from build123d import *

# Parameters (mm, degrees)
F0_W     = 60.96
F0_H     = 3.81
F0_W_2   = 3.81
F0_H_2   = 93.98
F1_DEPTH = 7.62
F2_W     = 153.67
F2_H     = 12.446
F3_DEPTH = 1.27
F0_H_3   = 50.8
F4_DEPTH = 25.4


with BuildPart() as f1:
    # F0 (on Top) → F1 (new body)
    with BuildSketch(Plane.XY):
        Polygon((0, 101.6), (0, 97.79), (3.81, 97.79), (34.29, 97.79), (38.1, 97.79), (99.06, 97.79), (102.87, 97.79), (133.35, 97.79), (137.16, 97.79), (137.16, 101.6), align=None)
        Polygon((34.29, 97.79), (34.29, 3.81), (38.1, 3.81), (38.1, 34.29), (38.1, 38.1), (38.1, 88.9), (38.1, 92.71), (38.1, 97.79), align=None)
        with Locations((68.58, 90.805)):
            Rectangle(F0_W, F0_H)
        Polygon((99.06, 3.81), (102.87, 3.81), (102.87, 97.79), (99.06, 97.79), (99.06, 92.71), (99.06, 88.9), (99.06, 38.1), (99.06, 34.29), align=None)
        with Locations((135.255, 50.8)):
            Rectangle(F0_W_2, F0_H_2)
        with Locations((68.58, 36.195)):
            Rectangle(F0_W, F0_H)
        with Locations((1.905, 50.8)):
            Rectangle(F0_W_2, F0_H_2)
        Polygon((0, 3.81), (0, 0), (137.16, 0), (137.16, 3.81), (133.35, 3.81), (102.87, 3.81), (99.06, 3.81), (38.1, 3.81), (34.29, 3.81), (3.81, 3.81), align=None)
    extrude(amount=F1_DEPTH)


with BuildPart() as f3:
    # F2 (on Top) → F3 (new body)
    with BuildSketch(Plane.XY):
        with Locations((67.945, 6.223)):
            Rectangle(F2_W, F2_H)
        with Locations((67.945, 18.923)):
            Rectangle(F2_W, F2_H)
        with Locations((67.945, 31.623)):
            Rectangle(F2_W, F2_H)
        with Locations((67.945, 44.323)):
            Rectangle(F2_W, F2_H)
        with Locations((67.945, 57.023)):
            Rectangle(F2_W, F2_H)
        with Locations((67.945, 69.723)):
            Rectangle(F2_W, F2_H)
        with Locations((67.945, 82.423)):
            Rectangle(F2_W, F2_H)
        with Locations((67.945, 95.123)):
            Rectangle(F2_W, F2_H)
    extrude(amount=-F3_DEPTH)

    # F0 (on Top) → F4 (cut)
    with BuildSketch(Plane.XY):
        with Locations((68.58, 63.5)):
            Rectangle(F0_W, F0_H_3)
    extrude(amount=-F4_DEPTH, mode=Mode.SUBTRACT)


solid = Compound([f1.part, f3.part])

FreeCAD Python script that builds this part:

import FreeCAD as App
import Part
import Sketcher
from FreeCAD import Vector
Q = App.Units.Quantity

doc = App.newDocument("Part")
params = doc.addObject("Spreadsheet::Sheet", "Params")
for row, (alias, value) in enumerate([
    ("sketch1_height", "4 in"),
    ("sketch1_height2", "2 in"),
    ("sketch1_width", "5.4 in"),
    ("sketch1_width2", "1.2 in"),
    ("sketch1_width3", "2.4 in"),
    ("pad1_length", "0.3 in"),
    ("sketch2_width", "6.05 in"),
    ("sketch2_height", "0.49 in"),
    ("pad2_length", "0.05 in"),
    ("sketch3_height", "2 in"),
    ("sketch3_width", "2.4 in"),
    ("pocket1_length", "1 in"),
], start=1):
    params.set(f"A{row}", alias)
    params.set(f"B{row}", "=" + value)
    params.setAlias(f"B{row}", alias)

body = doc.addObject("PartDesign::Body", "Body")

sketch1 = body.newObject("Sketcher::SketchObject", "Sketch")
sketch1.AttachmentSupport = (doc.getObject("XY_Plane"), [""])
sketch1.MapMode = "FlatFace"
sketch1.addGeometry(Part.LineSegment(Vector(0, 102, 0), Vector(0, 0, 0)), False)
sketch1.addGeometry(Part.LineSegment(Vector(0, 0, 0), Vector(137, 0, 0)), False)
sketch1.addGeometry(Part.LineSegment(Vector(137, 0, 0), Vector(137, 102, 0)), False)
sketch1.addGeometry(Part.LineSegment(Vector(137, 102, 0), Vector(0, 102, 0)), False)
sketch1.addGeometry(Part.LineSegment(Vector(4, 4, 0), Vector(4, 98, 0)), False)
sketch1.addGeometry(Part.LineSegment(Vector(4, 98, 0), Vector(34, 98, 0)), False)
sketch1.addGeometry(Part.LineSegment(Vector(34, 98, 0), Vector(34, 4, 0)), False)
sketch1.addGeometry(Part.LineSegment(Vector(34, 4, 0), Vector(4, 4, 0)), False)
sketch1.addGeometry(Part.LineSegment(Vector(38, 4, 0), Vector(38, 34, 0)), False)
sketch1.addGeometry(Part.LineSegment(Vector(38, 34, 0), Vector(99, 34, 0)), False)
sketch1.addGeometry(Part.LineSegment(Vector(99, 34, 0), Vector(99, 4, 0)), False)
sketch1.addGeometry(Part.LineSegment(Vector(99, 4, 0), Vector(38, 4, 0)), False)
sketch1.addGeometry(Part.LineSegment(Vector(103, 4, 0), Vector(103, 98, 0)), False)
sketch1.addGeometry(Part.LineSegment(Vector(103, 98, 0), Vector(133, 98, 0)), False)
sketch1.addGeometry(Part.LineSegment(Vector(133, 98, 0), Vector(133, 4, 0)), False)
sketch1.addGeometry(Part.LineSegment(Vector(133, 4, 0), Vector(103, 4, 0)), False)
sketch1.addGeometry(Part.LineSegment(Vector(38, 38, 0), Vector(38, 89, 0)), False)
sketch1.addGeometry(Part.LineSegment(Vector(38, 89, 0), Vector(99, 89, 0)), False)
sketch1.addGeometry(Part.LineSegment(Vector(99, 89, 0), Vector(99, 38, 0)), False)
sketch1.addGeometry(Part.LineSegment(Vector(99, 38, 0), Vector(38, 38, 0)), False)
sketch1.addGeometry(Part.LineSegment(Vector(99, 93, 0), Vector(38, 93, 0)), False)
sketch1.addGeometry(Part.LineSegment(Vector(38, 93, 0), Vector(38, 98, 0)), False)
sketch1.addGeometry(Part.LineSegment(Vector(38, 98, 0), Vector(99, 98, 0)), False)
sketch1.addGeometry(Part.LineSegment(Vector(99, 98, 0), Vector(99, 93, 0)), False)
sketch1.addConstraint(Sketcher.Constraint("Coincident", 0, 2, 1, 1))
sketch1.addConstraint(Sketcher.Constraint("Coincident", 1, 2, 2, 1))
sketch1.addConstraint(Sketcher.Constraint("Coincident", 2, 2, 3, 1))
sketch1.addConstraint(Sketcher.Constraint("Coincident", 3, 2, 0, 1))
sketch1.addConstraint(Sketcher.Constraint("Coincident", 4, 2, 5, 1))
sketch1.addConstraint(Sketcher.Constraint("Coincident", 5, 2, 6, 1))
sketch1.addConstraint(Sketcher.Constraint("Coincident", 6, 2, 7, 1))
sketch1.addConstraint(Sketcher.Constraint("Coincident", 7, 2, 4, 1))
sketch1.addConstraint(Sketcher.Constraint("Coincident", 8, 2, 9, 1))
sketch1.addConstraint(Sketcher.Constraint("Coincident", 9, 2, 10, 1))
sketch1.addConstraint(Sketcher.Constraint("Coincident", 10, 2, 11, 1))
sketch1.addConstraint(Sketcher.Constraint("Coincident", 11, 2, 8, 1))
sketch1.addConstraint(Sketcher.Constraint("Coincident", 12, 2, 13, 1))
sketch1.addConstraint(Sketcher.Constraint("Coincident", 13, 2, 14, 1))
sketch1.addConstraint(Sketcher.Constraint("Coincident", 14, 2, 15, 1))
sketch1.addConstraint(Sketcher.Constraint("Coincident", 15, 2, 12, 1))
sketch1.addConstraint(Sketcher.Constraint("Coincident", 16, 2, 17, 1))
sketch1.addConstraint(Sketcher.Constraint("Coincident", 17, 2, 18, 1))
sketch1.addConstraint(Sketcher.Constraint("Coincident", 18, 2, 19, 1))
sketch1.addConstraint(Sketcher.Constraint("Coincident", 19, 2, 16, 1))
sketch1.addConstraint(Sketcher.Constraint("Coincident", 20, 2, 21, 1))
sketch1.addConstraint(Sketcher.Constraint("Coincident", 21, 2, 22, 1))
sketch1.addConstraint(Sketcher.Constraint("Coincident", 22, 2, 23, 1))
sketch1.addConstraint(Sketcher.Constraint("Coincident", 23, 2, 20, 1))
sketch1.addConstraint(Sketcher.Constraint("Vertical", 0))
sketch1.addConstraint(Sketcher.Constraint("Horizontal", 1))
sketch1.addConstraint(Sketcher.Constraint("Vertical", 2))
sketch1.addConstraint(Sketcher.Constraint("Horizontal", 3))
sketch1.addConstraint(Sketcher.Constraint("Vertical", 4))
sketch1.addConstraint(Sketcher.Constraint("Horizontal", 5))
sketch1.addConstraint(Sketcher.Constraint("Vertical", 6))
sketch1.addConstraint(Sketcher.Constraint("Horizontal", 7))
sketch1.addConstraint(Sketcher.Constraint("Vertical", 8))
sketch1.addConstraint(Sketcher.Constraint("Horizontal", 9))
sketch1.addConstraint(Sketcher.Constraint("Vertical", 10))
sketch1.addConstraint(Sketcher.Constraint("Horizontal", 11))
sketch1.addConstraint(Sketcher.Constraint("Vertical", 12))
sketch1.addConstraint(Sketcher.Constraint("Horizontal", 13))
sketch1.addConstraint(Sketcher.Constraint("Vertical", 14))
sketch1.addConstraint(Sketcher.Constraint("Horizontal", 15))
sketch1.addConstraint(Sketcher.Constraint("Vertical", 16))
sketch1.addConstraint(Sketcher.Constraint("Horizontal", 17))
sketch1.addConstraint(Sketcher.Constraint("Vertical", 18))
sketch1.addConstraint(Sketcher.Constraint("Horizontal", 19))
sketch1.addConstraint(Sketcher.Constraint("Horizontal", 20))
sketch1.addConstraint(Sketcher.Constraint("Vertical", 21))
sketch1.addConstraint(Sketcher.Constraint("Horizontal", 22))
sketch1.addConstraint(Sketcher.Constraint("Vertical", 23))
sketch1.addConstraint(Sketcher.Constraint("Coincident", 0, 2, -1, 1))
sketch1.addConstraint(Sketcher.Constraint("Horizontal", 7, 2, 10, 2))
sketch1.addConstraint(Sketcher.Constraint("Horizontal", 5, 2, 12, 2))
sketch1.addConstraint(Sketcher.Constraint("Horizontal", 11, 2, 14, 2))
sketch1.addConstraint(Sketcher.Constraint("Horizontal", 13, 2, 21, 2))
sketch1.addConstraint(Sketcher.Constraint("Vertical", 11, 2, 16, 2))
sketch1.addConstraint(Sketcher.Constraint("Vertical", 10, 2, 17, 2))
sketch1.addConstraint(Sketcher.Constraint("Vertical", 19, 2, 20, 2))
sketch1.addConstraint(Sketcher.Constraint("Vertical", 18, 2, 22, 2))
sketch1.addConstraint(Sketcher.Constraint("Equal", 7, 13))
sketch1.addConstraint(Sketcher.Constraint("Equal", 15, 8))
sketch1.addConstraint(Sketcher.Constraint("DistanceY", 0, 2, 0, 1, Q("4 in")))
sketch1.addConstraint(Sketcher.Constraint("DistanceY", 16, 1, 16, 2, Q("2 in")))
sketch1.addConstraint(Sketcher.Constraint("DistanceX", 1, 1, 1, 2, Q("5.4 in")))
sketch1.addConstraint(Sketcher.Constraint("DistanceX", 5, 1, 5, 2, Q("1.2 in")))
sketch1.addConstraint(Sketcher.Constraint("DistanceX", 9, 1, 9, 2, Q("2.4 in")))
sketch1.addConstraint(Sketcher.Constraint("DistanceY", 4, 1, 4, 2, Q("3.7 in")))
sketch1.addConstraint(Sketcher.Constraint("DistanceY", 21, 1, 21, 2, Q("0.2 in")))
sketch1.addConstraint(Sketcher.Constraint("DistanceX", -1, 1, 8, 2, Q("1.5 in")))
sketch1.addConstraint(Sketcher.Constraint("DistanceY", -1, 1, 16, 2, Q("3.5 in")))
sketch1.addConstraint(Sketcher.Constraint("DistanceX", 5, 2, 12, 2, Q("2.7 in")))
sketch1.addConstraint(Sketcher.Constraint("DistanceX", -1, 1, 4, 2, Q("0.15 in")))
sketch1.addConstraint(Sketcher.Constraint("DistanceY", -1, 1, 4, 2, Q("3.85 in")))
sketch1.setExpression("Constraints[59]", "Params.sketch1_height")
sketch1.setExpression("Constraints[60]", "Params.sketch1_height2")
sketch1.setExpression("Constraints[61]", "Params.sketch1_width")
sketch1.setExpression("Constraints[62]", "Params.sketch1_width2")
sketch1.setExpression("Constraints[63]", "Params.sketch1_width3")
pad1 = body.newObject("PartDesign::Pad", "Pad")
pad1.Profile = sketch1
pad1.setExpression("Length", "Params.pad1_length")
body2 = doc.addObject("PartDesign::Body", "Body001")
body2.AllowCompound = True

sketch2 = body2.newObject("Sketcher::SketchObject", "Sketch001")
sketch2.AttachmentSupport = (doc.getObject("XY_Plane001"), [""])
sketch2.MapMode = "FlatFace"
sketch2.addGeometry(Part.LineSegment(Vector(-9, 12, 0), Vector(-9, 0, 0)), False)
sketch2.addGeometry(Part.LineSegment(Vector(-9, 0, 0), Vector(145, 0, 0)), False)
sketch2.addGeometry(Part.LineSegment(Vector(145, 0, 0), Vector(145, 12, 0)), False)
sketch2.addGeometry(Part.LineSegment(Vector(145, 12, 0), Vector(-9, 12, 0)), False)
sketch2.addGeometry(Part.LineSegment(Vector(-9, 25, 0), Vector(-9, 13, 0)), False)
sketch2.addGeometry(Part.LineSegment(Vector(-9, 13, 0), Vector(145, 13, 0)), False)
sketch2.addGeometry(Part.LineSegment(Vector(145, 13, 0), Vector(145, 25, 0)), False)
sketch2.addGeometry(Part.LineSegment(Vector(145, 25, 0), Vector(-9, 25, 0)), False)
sketch2.addGeometry(Part.LineSegment(Vector(-9, 38, 0), Vector(-9, 25, 0)), False)
sketch2.addGeometry(Part.LineSegment(Vector(-9, 25, 0), Vector(145, 25, 0)), False)
sketch2.addGeometry(Part.LineSegment(Vector(145, 25, 0), Vector(145, 38, 0)), False)
sketch2.addGeometry(Part.LineSegment(Vector(145, 38, 0), Vector(-9, 38, 0)), False)
sketch2.addGeometry(Part.LineSegment(Vector(-9, 51, 0), Vector(-9, 38, 0)), False)
sketch2.addGeometry(Part.LineSegment(Vector(-9, 38, 0), Vector(145, 38, 0)), False)
sketch2.addGeometry(Part.LineSegment(Vector(145, 38, 0), Vector(145, 51, 0)), False)
sketch2.addGeometry(Part.LineSegment(Vector(145, 51, 0), Vector(-9, 51, 0)), False)
sketch2.addGeometry(Part.LineSegment(Vector(-9, 63, 0), Vector(-9, 51, 0)), False)
sketch2.addGeometry(Part.LineSegment(Vector(-9, 51, 0), Vector(145, 51, 0)), False)
sketch2.addGeometry(Part.LineSegment(Vector(145, 51, 0), Vector(145, 63, 0)), False)
sketch2.addGeometry(Part.LineSegment(Vector(145, 63, 0), Vector(-9, 63, 0)), False)
sketch2.addGeometry(Part.LineSegment(Vector(-9, 76, 0), Vector(-9, 64, 0)), False)
sketch2.addGeometry(Part.LineSegment(Vector(-9, 64, 0), Vector(145, 64, 0)), False)
sketch2.addGeometry(Part.LineSegment(Vector(145, 64, 0), Vector(145, 76, 0)), False)
sketch2.addGeometry(Part.LineSegment(Vector(145, 76, 0), Vector(-9, 76, 0)), False)
sketch2.addGeometry(Part.LineSegment(Vector(-9, 89, 0), Vector(-9, 76, 0)), False)
sketch2.addGeometry(Part.LineSegment(Vector(-9, 76, 0), Vector(145, 76, 0)), False)
sketch2.addGeometry(Part.LineSegment(Vector(145, 76, 0), Vector(145, 89, 0)), False)
sketch2.addGeometry(Part.LineSegment(Vector(145, 89, 0), Vector(-9, 89, 0)), False)
sketch2.addGeometry(Part.LineSegment(Vector(-9, 101, 0), Vector(-9, 89, 0)), False)
sketch2.addGeometry(Part.LineSegment(Vector(-9, 89, 0), Vector(145, 89, 0)), False)
sketch2.addGeometry(Part.LineSegment(Vector(145, 89, 0), Vector(145, 101, 0)), False)
sketch2.addGeometry(Part.LineSegment(Vector(145, 101, 0), Vector(-9, 101, 0)), False)
sketch2.addConstraint(Sketcher.Constraint("Coincident", 0, 2, 1, 1))
sketch2.addConstraint(Sketcher.Constraint("Coincident", 1, 2, 2, 1))
sketch2.addConstraint(Sketcher.Constraint("Coincident", 2, 2, 3, 1))
sketch2.addConstraint(Sketcher.Constraint("Coincident", 3, 2, 0, 1))
sketch2.addConstraint(Sketcher.Constraint("Coincident", 4, 2, 5, 1))
sketch2.addConstraint(Sketcher.Constraint("Coincident", 5, 2, 6, 1))
sketch2.addConstraint(Sketcher.Constraint("Coincident", 6, 2, 7, 1))
sketch2.addConstraint(Sketcher.Constraint("Coincident", 7, 2, 4, 1))
sketch2.addConstraint(Sketcher.Constraint("Coincident", 8, 2, 9, 1))
sketch2.addConstraint(Sketcher.Constraint("Coincident", 9, 2, 10, 1))
sketch2.addConstraint(Sketcher.Constraint("Coincident", 10, 2, 11, 1))
sketch2.addConstraint(Sketcher.Constraint("Coincident", 11, 2, 8, 1))
sketch2.addConstraint(Sketcher.Constraint("Coincident", 12, 2, 13, 1))
sketch2.addConstraint(Sketcher.Constraint("Coincident", 13, 2, 14, 1))
sketch2.addConstraint(Sketcher.Constraint("Coincident", 14, 2, 15, 1))
sketch2.addConstraint(Sketcher.Constraint("Coincident", 15, 2, 12, 1))
sketch2.addConstraint(Sketcher.Constraint("Coincident", 16, 2, 17, 1))
sketch2.addConstraint(Sketcher.Constraint("Coincident", 17, 2, 18, 1))
sketch2.addConstraint(Sketcher.Constraint("Coincident", 18, 2, 19, 1))
sketch2.addConstraint(Sketcher.Constraint("Coincident", 19, 2, 16, 1))
sketch2.addConstraint(Sketcher.Constraint("Coincident", 20, 2, 21, 1))
sketch2.addConstraint(Sketcher.Constraint("Coincident", 21, 2, 22, 1))
sketch2.addConstraint(Sketcher.Constraint("Coincident", 22, 2, 23, 1))
sketch2.addConstraint(Sketcher.Constraint("Coincident", 23, 2, 20, 1))
sketch2.addConstraint(Sketcher.Constraint("Coincident", 24, 2, 25, 1))
sketch2.addConstraint(Sketcher.Constraint("Coincident", 25, 2, 26, 1))
sketch2.addConstraint(Sketcher.Constraint("Coincident", 26, 2, 27, 1))
sketch2.addConstraint(Sketcher.Constraint("Coincident", 27, 2, 24, 1))
sketch2.addConstraint(Sketcher.Constraint("Coincident", 28, 2, 29, 1))
sketch2.addConstraint(Sketcher.Constraint("Coincident", 29, 2, 30, 1))
sketch2.addConstraint(Sketcher.Constraint("Coincident", 30, 2, 31, 1))
sketch2.addConstraint(Sketcher.Constraint("Coincident", 31, 2, 28, 1))
sketch2.addConstraint(Sketcher.Constraint("Vertical", 0))
sketch2.addConstraint(Sketcher.Constraint("Horizontal", 1))
sketch2.addConstraint(Sketcher.Constraint("Vertical", 2))
sketch2.addConstraint(Sketcher.Constraint("Horizontal", 3))
sketch2.addConstraint(Sketcher.Constraint("Vertical", 4))
sketch2.addConstraint(Sketcher.Constraint("Horizontal", 5))
sketch2.addConstraint(Sketcher.Constraint("Vertical", 6))
sketch2.addConstraint(Sketcher.Constraint("Horizontal", 7))
sketch2.addConstraint(Sketcher.Constraint("Vertical", 8))
sketch2.addConstraint(Sketcher.Constraint("Horizontal", 9))
sketch2.addConstraint(Sketcher.Constraint("Vertical", 10))
sketch2.addConstraint(Sketcher.Constraint("Horizontal", 11))
sketch2.addConstraint(Sketcher.Constraint("Vertical", 12))
sketch2.addConstraint(Sketcher.Constraint("Horizontal", 13))
sketch2.addConstraint(Sketcher.Constraint("Vertical", 14))
sketch2.addConstraint(Sketcher.Constraint("Horizontal", 15))
sketch2.addConstraint(Sketcher.Constraint("Vertical", 16))
sketch2.addConstraint(Sketcher.Constraint("Horizontal", 17))
sketch2.addConstraint(Sketcher.Constraint("Vertical", 18))
sketch2.addConstraint(Sketcher.Constraint("Horizontal", 19))
sketch2.addConstraint(Sketcher.Constraint("Vertical", 20))
sketch2.addConstraint(Sketcher.Constraint("Horizontal", 21))
sketch2.addConstraint(Sketcher.Constraint("Vertical", 22))
sketch2.addConstraint(Sketcher.Constraint("Horizontal", 23))
sketch2.addConstraint(Sketcher.Constraint("Vertical", 24))
sketch2.addConstraint(Sketcher.Constraint("Horizontal", 25))
sketch2.addConstraint(Sketcher.Constraint("Vertical", 26))
sketch2.addConstraint(Sketcher.Constraint("Horizontal", 27))
sketch2.addConstraint(Sketcher.Constraint("Vertical", 28))
sketch2.addConstraint(Sketcher.Constraint("Horizontal", 29))
sketch2.addConstraint(Sketcher.Constraint("Vertical", 30))
sketch2.addConstraint(Sketcher.Constraint("Horizontal", 31))
sketch2.addConstraint(Sketcher.Constraint("PointOnObject", 0, 2, -1))
sketch2.addConstraint(Sketcher.Constraint("Vertical", 3, 2, 4, 2))
sketch2.addConstraint(Sketcher.Constraint("Vertical", 2, 2, 5, 2))
sketch2.addConstraint(Sketcher.Constraint("Vertical", 7, 2, 8, 2))
sketch2.addConstraint(Sketcher.Constraint("Vertical", 6, 2, 9, 2))
sketch2.addConstraint(Sketcher.Constraint("Vertical", 11, 2, 12, 2))
sketch2.addConstraint(Sketcher.Constraint("Vertical", 10, 2, 13, 2))
sketch2.addConstraint(Sketcher.Constraint("Vertical", 15, 2, 16, 2))
sketch2.addConstraint(Sketcher.Constraint("Vertical", 14, 2, 17, 2))
sketch2.addConstraint(Sketcher.Constraint("Vertical", 19, 2, 20, 2))
sketch2.addConstraint(Sketcher.Constraint("Vertical", 18, 2, 21, 2))
sketch2.addConstraint(Sketcher.Constraint("Vertical", 23, 2, 24, 2))
sketch2.addConstraint(Sketcher.Constraint("Vertical", 22, 2, 25, 2))
sketch2.addConstraint(Sketcher.Constraint("Vertical", 27, 2, 28, 2))
sketch2.addConstraint(Sketcher.Constraint("Vertical", 26, 2, 29, 2))
sketch2.addConstraint(Sketcher.Constraint("Equal", 2, 4))
sketch2.addConstraint(Sketcher.Constraint("Equal", 6, 8))
sketch2.addConstraint(Sketcher.Constraint("Equal", 10, 12))
sketch2.addConstraint(Sketcher.Constraint("Equal", 14, 16))
sketch2.addConstraint(Sketcher.Constraint("Equal", 18, 20))
sketch2.addConstraint(Sketcher.Constraint("Equal", 22, 24))
sketch2.addConstraint(Sketcher.Constraint("Equal", 26, 28))
sketch2.addConstraint(Sketcher.Constraint("DistanceY", -1, 1, 8, 2, Q("1 in")))
sketch2.addConstraint(Sketcher.Constraint("DistanceY", -1, 1, 16, 2, Q("2 in")))
sketch2.addConstraint(Sketcher.Constraint("DistanceY", -1, 1, 24, 2, Q("3 in")))
sketch2.addConstraint(Sketcher.Constraint("DistanceY", 4, 2, 12, 2, Q("1 in")))
sketch2.addConstraint(Sketcher.Constraint("DistanceY", 12, 2, 20, 2, Q("1 in")))
sketch2.addConstraint(Sketcher.Constraint("DistanceY", 20, 2, 28, 2, Q("1 in")))
sketch2.addConstraint(Sketcher.Constraint("DistanceX", 1, 1, 1, 2, Q("6.05 in")))
sketch2.addConstraint(Sketcher.Constraint("DistanceY", 0, 2, 0, 1, Q("0.49 in")))
sketch2.addConstraint(Sketcher.Constraint("DistanceX", -1, 1, 1, 2, Q("5.7 in")))
sketch2.addConstraint(Sketcher.Constraint("DistanceY", -1, 1, 4, 2, Q("0.5 in")))
sketch2.setExpression("Constraints[92]", "Params.sketch2_width")
sketch2.setExpression("Constraints[93]", "Params.sketch2_height")
pad2 = body2.newObject("PartDesign::Pad", "Pad001")
pad2.Profile = sketch2
pad2.setExpression("Length", "Params.pad2_length")
pad2.Reversed = True

sketch3 = body2.newObject("Sketcher::SketchObject", "Sketch002")
sketch3.AttachmentSupport = (doc.getObject("XY_Plane001"), [""])
sketch3.MapMode = "FlatFace"
sketch3.addGeometry(Part.LineSegment(Vector(38, 89, 0), Vector(38, 38, 0)), False)
sketch3.addGeometry(Part.LineSegment(Vector(38, 38, 0), Vector(99, 38, 0)), False)
sketch3.addGeometry(Part.LineSegment(Vector(99, 38, 0), Vector(99, 89, 0)), False)
sketch3.addGeometry(Part.LineSegment(Vector(99, 89, 0), Vector(38, 89, 0)), False)
sketch3.addConstraint(Sketcher.Constraint("Coincident", 0, 2, 1, 1))
sketch3.addConstraint(Sketcher.Constraint("Coincident", 1, 2, 2, 1))
sketch3.addConstraint(Sketcher.Constraint("Coincident", 2, 2, 3, 1))
sketch3.addConstraint(Sketcher.Constraint("Coincident", 3, 2, 0, 1))
sketch3.addConstraint(Sketcher.Constraint("Vertical", 0))
sketch3.addConstraint(Sketcher.Constraint("Horizontal", 1))
sketch3.addConstraint(Sketcher.Constraint("Vertical", 2))
sketch3.addConstraint(Sketcher.Constraint("Horizontal", 3))
sketch3.addConstraint(Sketcher.Constraint("DistanceY", 0, 2, 0, 1, Q("2 in")))
sketch3.addConstraint(Sketcher.Constraint("DistanceX", 1, 1, 1, 2, Q("2.4 in")))
sketch3.addConstraint(Sketcher.Constraint("DistanceX", -1, 1, 0, 2, Q("1.5 in")))
sketch3.addConstraint(Sketcher.Constraint("DistanceY", -1, 1, 0, 2, Q("1.5 in")))
sketch3.setExpression("Constraints[8]", "Params.sketch3_height")
sketch3.setExpression("Constraints[9]", "Params.sketch3_width")
pocket1 = body2.newObject("PartDesign::Pocket", "Pocket")
pocket1.Profile = sketch3
pocket1.setExpression("Length", "Params.pocket1_length")

doc.recompute()
